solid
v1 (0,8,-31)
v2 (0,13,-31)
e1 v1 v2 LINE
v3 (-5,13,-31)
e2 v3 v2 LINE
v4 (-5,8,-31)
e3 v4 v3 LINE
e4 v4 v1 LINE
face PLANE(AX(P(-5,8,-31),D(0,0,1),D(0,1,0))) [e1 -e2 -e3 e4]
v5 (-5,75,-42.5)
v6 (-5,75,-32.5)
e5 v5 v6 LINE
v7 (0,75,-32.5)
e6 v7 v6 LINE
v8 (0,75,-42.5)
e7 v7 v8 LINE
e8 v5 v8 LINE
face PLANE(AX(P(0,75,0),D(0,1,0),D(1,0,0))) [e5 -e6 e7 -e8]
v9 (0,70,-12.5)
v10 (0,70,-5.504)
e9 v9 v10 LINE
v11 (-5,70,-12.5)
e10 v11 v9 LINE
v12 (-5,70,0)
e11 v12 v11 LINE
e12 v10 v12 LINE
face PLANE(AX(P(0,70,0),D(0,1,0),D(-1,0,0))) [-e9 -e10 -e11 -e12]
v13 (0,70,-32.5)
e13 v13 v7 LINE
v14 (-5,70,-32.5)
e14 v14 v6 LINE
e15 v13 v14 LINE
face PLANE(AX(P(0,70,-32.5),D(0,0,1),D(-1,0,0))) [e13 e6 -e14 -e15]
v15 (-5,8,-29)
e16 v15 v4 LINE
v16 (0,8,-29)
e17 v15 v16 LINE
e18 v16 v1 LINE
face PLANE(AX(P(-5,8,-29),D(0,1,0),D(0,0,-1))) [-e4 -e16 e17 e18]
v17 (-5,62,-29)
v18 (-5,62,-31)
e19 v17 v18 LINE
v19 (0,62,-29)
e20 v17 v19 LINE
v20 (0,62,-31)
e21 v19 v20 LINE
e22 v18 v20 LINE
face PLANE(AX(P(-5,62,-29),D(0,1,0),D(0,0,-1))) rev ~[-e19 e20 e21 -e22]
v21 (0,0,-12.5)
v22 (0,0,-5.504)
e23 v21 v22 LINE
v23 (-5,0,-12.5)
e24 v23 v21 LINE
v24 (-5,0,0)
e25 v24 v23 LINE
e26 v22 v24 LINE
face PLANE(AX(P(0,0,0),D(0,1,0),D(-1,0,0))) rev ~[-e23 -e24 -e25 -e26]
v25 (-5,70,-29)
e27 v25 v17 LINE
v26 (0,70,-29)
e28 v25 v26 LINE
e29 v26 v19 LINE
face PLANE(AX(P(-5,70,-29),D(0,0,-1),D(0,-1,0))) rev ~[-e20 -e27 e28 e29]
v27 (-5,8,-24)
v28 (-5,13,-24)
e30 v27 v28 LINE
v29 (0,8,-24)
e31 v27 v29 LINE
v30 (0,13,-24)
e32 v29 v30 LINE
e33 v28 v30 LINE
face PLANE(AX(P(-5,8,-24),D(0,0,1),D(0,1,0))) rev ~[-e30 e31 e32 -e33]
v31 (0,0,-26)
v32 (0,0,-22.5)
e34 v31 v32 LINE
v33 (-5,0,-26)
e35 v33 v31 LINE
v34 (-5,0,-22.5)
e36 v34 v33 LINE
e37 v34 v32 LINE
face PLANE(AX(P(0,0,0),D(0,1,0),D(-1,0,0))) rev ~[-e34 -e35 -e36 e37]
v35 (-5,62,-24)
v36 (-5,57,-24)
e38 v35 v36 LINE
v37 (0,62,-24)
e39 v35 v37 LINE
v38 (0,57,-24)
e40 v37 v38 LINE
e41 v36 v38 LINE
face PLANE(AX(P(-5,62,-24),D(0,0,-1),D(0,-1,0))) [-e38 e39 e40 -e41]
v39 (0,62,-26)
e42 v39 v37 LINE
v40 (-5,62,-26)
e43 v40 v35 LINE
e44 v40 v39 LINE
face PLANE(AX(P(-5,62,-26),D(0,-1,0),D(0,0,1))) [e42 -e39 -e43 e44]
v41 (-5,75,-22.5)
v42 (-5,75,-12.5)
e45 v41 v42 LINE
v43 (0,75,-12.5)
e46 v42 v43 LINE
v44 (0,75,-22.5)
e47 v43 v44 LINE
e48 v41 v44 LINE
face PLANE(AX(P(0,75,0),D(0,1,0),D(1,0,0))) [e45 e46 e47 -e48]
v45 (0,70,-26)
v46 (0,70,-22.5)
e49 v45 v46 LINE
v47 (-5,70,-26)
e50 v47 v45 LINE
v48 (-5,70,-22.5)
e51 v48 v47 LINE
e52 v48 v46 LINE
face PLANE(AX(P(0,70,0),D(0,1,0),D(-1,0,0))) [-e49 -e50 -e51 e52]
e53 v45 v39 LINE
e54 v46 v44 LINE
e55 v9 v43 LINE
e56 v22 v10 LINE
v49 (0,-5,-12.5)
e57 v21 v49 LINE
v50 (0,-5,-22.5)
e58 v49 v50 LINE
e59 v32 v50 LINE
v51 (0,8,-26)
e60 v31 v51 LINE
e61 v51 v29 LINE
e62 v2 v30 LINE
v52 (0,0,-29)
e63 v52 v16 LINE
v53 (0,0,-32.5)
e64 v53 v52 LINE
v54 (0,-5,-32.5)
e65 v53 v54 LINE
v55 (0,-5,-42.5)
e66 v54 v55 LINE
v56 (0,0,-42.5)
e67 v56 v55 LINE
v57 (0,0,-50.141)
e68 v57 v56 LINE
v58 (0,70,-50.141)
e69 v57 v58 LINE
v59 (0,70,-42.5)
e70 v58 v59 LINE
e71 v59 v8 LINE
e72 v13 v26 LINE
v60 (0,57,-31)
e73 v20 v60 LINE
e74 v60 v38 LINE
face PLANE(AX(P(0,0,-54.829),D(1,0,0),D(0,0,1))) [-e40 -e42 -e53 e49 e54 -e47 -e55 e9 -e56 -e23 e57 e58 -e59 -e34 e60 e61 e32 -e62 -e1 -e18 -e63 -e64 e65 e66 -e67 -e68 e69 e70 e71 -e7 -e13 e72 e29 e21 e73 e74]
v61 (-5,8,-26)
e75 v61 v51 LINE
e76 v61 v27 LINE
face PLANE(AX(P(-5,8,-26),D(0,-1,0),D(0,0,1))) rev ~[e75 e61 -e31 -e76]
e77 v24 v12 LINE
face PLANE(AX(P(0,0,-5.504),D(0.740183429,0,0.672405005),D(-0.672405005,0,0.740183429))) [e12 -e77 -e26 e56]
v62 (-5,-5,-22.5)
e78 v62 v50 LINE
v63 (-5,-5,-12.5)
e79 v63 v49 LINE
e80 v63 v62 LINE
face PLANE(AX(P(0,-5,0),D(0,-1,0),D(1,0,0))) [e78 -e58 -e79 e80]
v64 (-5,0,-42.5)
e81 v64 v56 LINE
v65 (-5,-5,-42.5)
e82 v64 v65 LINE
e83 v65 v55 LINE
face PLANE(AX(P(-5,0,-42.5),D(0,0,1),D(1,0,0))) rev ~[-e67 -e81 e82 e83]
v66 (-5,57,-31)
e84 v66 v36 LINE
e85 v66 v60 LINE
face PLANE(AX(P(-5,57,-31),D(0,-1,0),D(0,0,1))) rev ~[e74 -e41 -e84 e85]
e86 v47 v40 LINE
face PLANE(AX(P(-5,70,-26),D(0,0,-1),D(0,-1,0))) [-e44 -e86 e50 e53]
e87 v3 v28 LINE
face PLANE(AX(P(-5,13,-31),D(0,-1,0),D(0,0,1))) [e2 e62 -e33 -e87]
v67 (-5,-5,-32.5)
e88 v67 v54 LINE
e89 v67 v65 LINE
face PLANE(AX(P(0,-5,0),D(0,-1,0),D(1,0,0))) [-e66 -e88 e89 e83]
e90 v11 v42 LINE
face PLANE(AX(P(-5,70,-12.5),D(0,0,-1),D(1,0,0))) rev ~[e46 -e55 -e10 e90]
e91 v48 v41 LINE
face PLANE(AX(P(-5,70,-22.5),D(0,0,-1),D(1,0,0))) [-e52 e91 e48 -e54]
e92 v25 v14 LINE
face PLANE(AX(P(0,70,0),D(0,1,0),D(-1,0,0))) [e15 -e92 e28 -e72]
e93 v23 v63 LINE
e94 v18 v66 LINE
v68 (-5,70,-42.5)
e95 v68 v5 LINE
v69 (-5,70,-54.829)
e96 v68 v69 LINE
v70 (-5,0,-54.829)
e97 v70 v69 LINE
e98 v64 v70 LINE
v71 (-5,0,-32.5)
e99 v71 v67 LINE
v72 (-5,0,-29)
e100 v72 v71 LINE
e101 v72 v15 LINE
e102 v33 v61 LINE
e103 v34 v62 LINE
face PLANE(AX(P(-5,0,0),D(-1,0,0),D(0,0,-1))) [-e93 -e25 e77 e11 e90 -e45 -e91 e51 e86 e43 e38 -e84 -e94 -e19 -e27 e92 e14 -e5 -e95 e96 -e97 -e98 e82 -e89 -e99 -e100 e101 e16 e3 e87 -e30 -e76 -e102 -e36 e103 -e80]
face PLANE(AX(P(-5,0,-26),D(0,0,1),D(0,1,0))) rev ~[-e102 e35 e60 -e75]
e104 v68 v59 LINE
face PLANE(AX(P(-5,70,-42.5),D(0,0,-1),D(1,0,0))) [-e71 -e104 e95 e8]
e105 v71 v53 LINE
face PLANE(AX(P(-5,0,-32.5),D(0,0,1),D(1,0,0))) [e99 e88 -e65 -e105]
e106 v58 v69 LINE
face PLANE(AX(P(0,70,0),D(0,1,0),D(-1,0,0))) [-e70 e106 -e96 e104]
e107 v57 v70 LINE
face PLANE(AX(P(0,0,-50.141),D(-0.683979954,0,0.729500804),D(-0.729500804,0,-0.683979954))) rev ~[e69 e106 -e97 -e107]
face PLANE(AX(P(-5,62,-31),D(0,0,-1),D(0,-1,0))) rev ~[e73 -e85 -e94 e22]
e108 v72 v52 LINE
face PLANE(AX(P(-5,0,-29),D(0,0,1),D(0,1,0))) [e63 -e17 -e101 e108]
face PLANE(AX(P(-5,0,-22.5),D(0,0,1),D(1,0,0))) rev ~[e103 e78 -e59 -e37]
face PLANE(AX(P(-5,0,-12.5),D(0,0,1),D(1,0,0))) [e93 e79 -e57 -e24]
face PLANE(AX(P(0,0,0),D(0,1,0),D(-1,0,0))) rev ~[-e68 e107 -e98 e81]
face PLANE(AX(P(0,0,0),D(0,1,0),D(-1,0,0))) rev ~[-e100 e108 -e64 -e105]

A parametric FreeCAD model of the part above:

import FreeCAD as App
import Part
import Sketcher

V = App.Vector
Q = App.Units.Quantity


def add_polygon(sketch, points):
    """Adds a closed chain of lines whose ends are joined by coincident constraints."""
    first, n = sketch.GeometryCount, len(points)
    for a, b in zip(points, points[1:] + points[:1]):
        sketch.addGeometry(Part.LineSegment(App.Vector(*a, 0), App.Vector(*b, 0)), False)
    for i in range(n):
        sketch.addConstraint(Sketcher.Constraint("Coincident", first + i, 2, first + (i + 1) % n, 1))

doc = App.newDocument("Part")
body = doc.addObject("PartDesign::Body", "Body")

# Sketch on XZ plane
sketch1 = body.newObject("Sketcher::SketchObject", "Sketch")
sketch1.AttachmentSupport = (doc.getObject("XZ_Plane"), [""])
sketch1.MapMode = "FlatFace"
add_polygon(sketch1, [(-5, 0), (0, 0), (0, -55), (-5, -55)])  # lines 0-3
sketch1.addConstraint(Sketcher.Constraint("Horizontal", 0))
sketch1.addConstraint(Sketcher.Constraint("Vertical", 1))
sketch1.addConstraint(Sketcher.Constraint("Horizontal", 2))
sketch1.addConstraint(Sketcher.Constraint("Vertical", 3))
sketch1.addConstraint(Sketcher.Constraint("Coincident", 0, 2, -1, 1))
sketch1.addConstraint(Sketcher.Constraint("DistanceX", 0, 1, 0, 2, Q("5 mm")))
sketch1.addConstraint(Sketcher.Constraint("DistanceY", 1, 2, 1, 1, Q("54.829 mm")))
pad1 = body.newObject("PartDesign::Pad", "Pad")
pad1.Profile = sketch1
pad1.Length = 70
pad1.Reversed = True

# Sketch on XZ plane
sketch2 = body.newObject("Sketcher::SketchObject", "Sketch001")
sketch2.AttachmentSupport = (doc.getObject("XZ_Plane"), [""])
sketch2.MapMode = "FlatFace"
sketch2.AttachmentOffset = App.Placement(V(0, 0, -70), App.Rotation())
add_polygon(sketch2, [(-5, -12), (0, -12), (0, -22), (-5, -22)])  # lines 0-3
add_polygon(sketch2, [(-5, -32), (0, -32), (0, -42), (-5, -42)])  # lines 4-7
sketch2.addConstraint(Sketcher.Constraint("Horizontal", 0))
sketch2.addConstraint(Sketcher.Constraint("Vertical", 1))
sketch2.addConstraint(Sketcher.Constraint("Horizontal", 2))
sketch2.addConstraint(Sketcher.Constraint("Vertical", 3))
sketch2.addConstraint(Sketcher.Constraint("Horizontal", 4))
sketch2.addConstraint(Sketcher.Constraint("Vertical", 5))
sketch2.addConstraint(Sketcher.Constraint("Horizontal", 6))
sketch2.addConstraint(Sketcher.Constraint("Vertical", 7))
sketch2.addConstraint(Sketcher.Constraint("PointOnObject", 0, 2, -2))
sketch2.addConstraint(Sketcher.Constraint("PointOnObject", 4, 2, -2))
sketch2.addConstraint(Sketcher.Constraint("Vertical", 3, 2, 6, 2))
sketch2.addConstraint(Sketcher.Constraint("Equal", 3, 5))
sketch2.addConstraint(Sketcher.Constraint("DistanceY", 1, 2, 1, 1, Q("10 mm")))
sketch2.addConstraint(Sketcher.Constraint("DistanceY", 4, 2, 1, 2, Q("10 mm")))
sketch2.addConstraint(Sketcher.Constraint("DistanceY", 0, 2, -1, 1, Q("12.5 mm")))
sketch2.addConstraint(Sketcher.Constraint("DistanceX", 0, 1, 0, 2, Q("5 mm")))
pad2 = body.newObject("PartDesign::Pad", "Pad001")
pad2.Profile = sketch2
pad2.Length = 5
pad2.Reversed = True

# Sketch on XZ plane
sketch3 = body.newObject("Sketcher::SketchObject", "Sketch002")
sketch3.AttachmentSupport = (doc.getObject("XZ_Plane"), [""])
sketch3.MapMode = "FlatFace"
add_polygon(sketch3, [(0, -12), (-5, -12), (-5, -22), (0, -22)])  # lines 0-3
add_polygon(sketch3, [(0, -32), (-5, -32), (-5, -42), (0, -42)])  # lines 4-7
sketch3.addConstraint(Sketcher.Constraint("Horizontal", 0))
sketch3.addConstraint(Sketcher.Constraint("Vertical", 1))
sketch3.addConstraint(Sketcher.Constraint("Horizontal", 2))
sketch3.addConstraint(Sketcher.Constraint("Vertical", 3))
sketch3.addConstraint(Sketcher.Constraint("Horizontal", 4))
sketch3.addConstraint(Sketcher.Constraint("Vertical", 5))
sketch3.addConstraint(Sketcher.Constraint("Horizontal", 6))
sketch3.addConstraint(Sketcher.Constraint("Vertical", 7))
sketch3.addConstraint(Sketcher.Constraint("PointOnObject", 2, 2, -2))
sketch3.addConstraint(Sketcher.Constraint("PointOnObject", 6, 2, -2))
sketch3.addConstraint(Sketcher.Constraint("Vertical", 1, 2, 4, 2))
sketch3.addConstraint(Sketcher.Constraint("Equal", 3, 5))
sketch3.addConstraint(Sketcher.Constraint("DistanceY", 1, 2, 1, 1, Q("10 mm")))
sketch3.addConstraint(Sketcher.Constraint("DistanceY", 4, 2, 1, 2, Q("10 mm")))
sketch3.addConstraint(Sketcher.Constraint("DistanceY", 0, 2, -1, 1, Q("12.5 mm")))
sketch3.addConstraint(Sketcher.Constraint("DistanceX", 0, 2, 0, 1, Q("5 mm")))
pad3 = body.newObject("PartDesign::Pad", "Pad002")
pad3.Profile = sketch3
pad3.Length = 5

# Sketch on XZ plane
sketch4 = body.newObject("Sketcher::SketchObject", "Sketch003")
sketch4.AttachmentSupport = (doc.getObject("XZ_Plane"), [""])
sketch4.MapMode = "FlatFace"
add_polygon(sketch4, [(0, 0), (-5, 0), (0, -5.5)])  # lines 0-2
add_polygon(sketch4, [(0, -50.1), (-5, -54.8), (0, -54.8)])  # lines 3-5
sketch4.addConstraint(Sketcher.Constraint("Horizontal", 0))
sketch4.addConstraint(Sketcher.Constraint("Vertical", 2))
sketch4.addConstraint(Sketcher.Constraint("Horizontal", 4))
sketch4.addConstraint(Sketcher.Constraint("Vertical", 5))
sketch4.addConstraint(Sketcher.Constraint("Coincident", 2, 2, -1, 1))
sketch4.addConstraint(Sketcher.Constraint("PointOnObject", 4, 2, -2))
sketch4.addConstraint(Sketcher.Constraint("Vertical", 0, 2, 3, 2))
sketch4.addConstraint(Sketcher.Constraint("DistanceX", 0, 2, 0, 1, Q("5 mm")))
sketch4.addConstraint(Sketcher.Constraint("DistanceY", 2, 1, 2, 2, Q("5.504 mm")))
sketch4.addConstraint(Sketcher.Constraint("DistanceY", 5, 1, 5, 2, Q("4.688 mm")))
sketch4.addConstraint(Sketcher.Constraint("DistanceY", 3, 2, -1, 1, Q("54.829 mm")))
pocket1 = body.newObject("PartDesign::Pocket", "Pocket")
pocket1.Profile = sketch4
pocket1.Length = 70

# Sketch on YZ plane
sketch5 = body.newObject("Sketcher::SketchObject", "Sketch004")
sketch5.AttachmentSupport = (doc.getObject("YZ_Plane"), [""])
sketch5.MapMode = "FlatFace"
sketch5.AttachmentOffset = App.Placement(V(0, 0, -5), App.Rotation())
add_polygon(sketch5, [(0, -29), (0, -26), (8, -26), (8, -24), (13, -24), (13, -31), (8, -31), (8, -29)])  # lines 0-7
add_polygon(sketch5, [(62, -26), (70, -26), (70, -29), (62, -29), (62, -31), (57, -31), (57, -24), (62, -24)])  # lines 8-15
sketch5.addConstraint(Sketcher.Constraint("Vertical", 0))
sketch5.addConstraint(Sketcher.Constraint("Horizontal", 1))
sketch5.addConstraint(Sketcher.Constraint("Vertical", 2))
sketch5.addConstraint(Sketcher.Constraint("Horizontal", 3))
sketch5.addConstraint(Sketcher.Constraint("Vertical", 4))
sketch5.addConstraint(Sketcher.Constraint("Horizontal", 5))
sketch5.addConstraint(Sketcher.Constraint("Vertical", 6))
sketch5.addConstraint(Sketcher.Constraint("Horizontal", 7))
sketch5.addConstraint(Sketcher.Constraint("Horizontal", 8))
sketch5.addConstraint(Sketcher.Constraint("Vertical", 9))
sketch5.addConstraint(Sketcher.Constraint("Horizontal", 10))
sketch5.addConstraint(Sketcher.Constraint("Vertical", 11))
sketch5.addConstraint(Sketcher.Constraint("Horizontal", 12))
sketch5.addConstraint(Sketcher.Constraint("Vertical", 13))
sketch5.addConstraint(Sketcher.Constraint("Horizontal", 14))
sketch5.addConstraint(Sketcher.Constraint("Vertical", 15))
sketch5.addConstraint(Sketcher.Constraint("PointOnObject", 0, 2, -2))
sketch5.addConstraint(Sketcher.Constraint("Horizontal", 1, 2, 8, 2))
sketch5.addConstraint(Sketcher.Constraint("Horizontal", 7, 2, 9, 2))
sketch5.addConstraint(Sketcher.Constraint("Horizontal", 5, 2, 11, 2))
sketch5.addConstraint(Sketcher.Constraint("Horizontal", 3, 2, 13, 2))
sketch5.addConstraint(Sketcher.Constraint("Vertical", 2, 2, 5, 2))
sketch5.addConstraint(Sketcher.Constraint("Vertical", 11, 2, 14, 2))
sketch5.addConstraint(Sketcher.Constraint("Equal", 7, 8))
sketch5.addConstraint(Sketcher.Constraint("Equal", 5, 12))
sketch5.addConstraint(Sketcher.Constraint("Equal", 2, 6))
sketch5.addConstraint(Sketcher.Constraint("DistanceX", 1, 1, 1, 2, Q("8 mm")))
sketch5.addConstraint(Sketcher.Constraint("DistanceX", 3, 1, 3, 2, Q("5 mm")))
sketch5.addConstraint(Sketcher.Constraint("DistanceY", 2, 1, 2, 2, Q("2 mm")))
sketch5.addConstraint(Sketcher.Constraint("DistanceY", 4, 2, 1, 2, Q("5 mm")))
sketch5.addConstraint(Sketcher.Constraint("DistanceY", 0, 2, -1, 1, Q("26 mm")))
sketch5.addConstraint(Sketcher.Constraint("DistanceX", -1, 1, 8, 2, Q("70 mm")))
pocket2 = body.newObject("PartDesign::Pocket", "Pocket001")
pocket2.Profile = sketch5
pocket2.Length = 5
pocket2.Reversed = True

doc.recompute()
